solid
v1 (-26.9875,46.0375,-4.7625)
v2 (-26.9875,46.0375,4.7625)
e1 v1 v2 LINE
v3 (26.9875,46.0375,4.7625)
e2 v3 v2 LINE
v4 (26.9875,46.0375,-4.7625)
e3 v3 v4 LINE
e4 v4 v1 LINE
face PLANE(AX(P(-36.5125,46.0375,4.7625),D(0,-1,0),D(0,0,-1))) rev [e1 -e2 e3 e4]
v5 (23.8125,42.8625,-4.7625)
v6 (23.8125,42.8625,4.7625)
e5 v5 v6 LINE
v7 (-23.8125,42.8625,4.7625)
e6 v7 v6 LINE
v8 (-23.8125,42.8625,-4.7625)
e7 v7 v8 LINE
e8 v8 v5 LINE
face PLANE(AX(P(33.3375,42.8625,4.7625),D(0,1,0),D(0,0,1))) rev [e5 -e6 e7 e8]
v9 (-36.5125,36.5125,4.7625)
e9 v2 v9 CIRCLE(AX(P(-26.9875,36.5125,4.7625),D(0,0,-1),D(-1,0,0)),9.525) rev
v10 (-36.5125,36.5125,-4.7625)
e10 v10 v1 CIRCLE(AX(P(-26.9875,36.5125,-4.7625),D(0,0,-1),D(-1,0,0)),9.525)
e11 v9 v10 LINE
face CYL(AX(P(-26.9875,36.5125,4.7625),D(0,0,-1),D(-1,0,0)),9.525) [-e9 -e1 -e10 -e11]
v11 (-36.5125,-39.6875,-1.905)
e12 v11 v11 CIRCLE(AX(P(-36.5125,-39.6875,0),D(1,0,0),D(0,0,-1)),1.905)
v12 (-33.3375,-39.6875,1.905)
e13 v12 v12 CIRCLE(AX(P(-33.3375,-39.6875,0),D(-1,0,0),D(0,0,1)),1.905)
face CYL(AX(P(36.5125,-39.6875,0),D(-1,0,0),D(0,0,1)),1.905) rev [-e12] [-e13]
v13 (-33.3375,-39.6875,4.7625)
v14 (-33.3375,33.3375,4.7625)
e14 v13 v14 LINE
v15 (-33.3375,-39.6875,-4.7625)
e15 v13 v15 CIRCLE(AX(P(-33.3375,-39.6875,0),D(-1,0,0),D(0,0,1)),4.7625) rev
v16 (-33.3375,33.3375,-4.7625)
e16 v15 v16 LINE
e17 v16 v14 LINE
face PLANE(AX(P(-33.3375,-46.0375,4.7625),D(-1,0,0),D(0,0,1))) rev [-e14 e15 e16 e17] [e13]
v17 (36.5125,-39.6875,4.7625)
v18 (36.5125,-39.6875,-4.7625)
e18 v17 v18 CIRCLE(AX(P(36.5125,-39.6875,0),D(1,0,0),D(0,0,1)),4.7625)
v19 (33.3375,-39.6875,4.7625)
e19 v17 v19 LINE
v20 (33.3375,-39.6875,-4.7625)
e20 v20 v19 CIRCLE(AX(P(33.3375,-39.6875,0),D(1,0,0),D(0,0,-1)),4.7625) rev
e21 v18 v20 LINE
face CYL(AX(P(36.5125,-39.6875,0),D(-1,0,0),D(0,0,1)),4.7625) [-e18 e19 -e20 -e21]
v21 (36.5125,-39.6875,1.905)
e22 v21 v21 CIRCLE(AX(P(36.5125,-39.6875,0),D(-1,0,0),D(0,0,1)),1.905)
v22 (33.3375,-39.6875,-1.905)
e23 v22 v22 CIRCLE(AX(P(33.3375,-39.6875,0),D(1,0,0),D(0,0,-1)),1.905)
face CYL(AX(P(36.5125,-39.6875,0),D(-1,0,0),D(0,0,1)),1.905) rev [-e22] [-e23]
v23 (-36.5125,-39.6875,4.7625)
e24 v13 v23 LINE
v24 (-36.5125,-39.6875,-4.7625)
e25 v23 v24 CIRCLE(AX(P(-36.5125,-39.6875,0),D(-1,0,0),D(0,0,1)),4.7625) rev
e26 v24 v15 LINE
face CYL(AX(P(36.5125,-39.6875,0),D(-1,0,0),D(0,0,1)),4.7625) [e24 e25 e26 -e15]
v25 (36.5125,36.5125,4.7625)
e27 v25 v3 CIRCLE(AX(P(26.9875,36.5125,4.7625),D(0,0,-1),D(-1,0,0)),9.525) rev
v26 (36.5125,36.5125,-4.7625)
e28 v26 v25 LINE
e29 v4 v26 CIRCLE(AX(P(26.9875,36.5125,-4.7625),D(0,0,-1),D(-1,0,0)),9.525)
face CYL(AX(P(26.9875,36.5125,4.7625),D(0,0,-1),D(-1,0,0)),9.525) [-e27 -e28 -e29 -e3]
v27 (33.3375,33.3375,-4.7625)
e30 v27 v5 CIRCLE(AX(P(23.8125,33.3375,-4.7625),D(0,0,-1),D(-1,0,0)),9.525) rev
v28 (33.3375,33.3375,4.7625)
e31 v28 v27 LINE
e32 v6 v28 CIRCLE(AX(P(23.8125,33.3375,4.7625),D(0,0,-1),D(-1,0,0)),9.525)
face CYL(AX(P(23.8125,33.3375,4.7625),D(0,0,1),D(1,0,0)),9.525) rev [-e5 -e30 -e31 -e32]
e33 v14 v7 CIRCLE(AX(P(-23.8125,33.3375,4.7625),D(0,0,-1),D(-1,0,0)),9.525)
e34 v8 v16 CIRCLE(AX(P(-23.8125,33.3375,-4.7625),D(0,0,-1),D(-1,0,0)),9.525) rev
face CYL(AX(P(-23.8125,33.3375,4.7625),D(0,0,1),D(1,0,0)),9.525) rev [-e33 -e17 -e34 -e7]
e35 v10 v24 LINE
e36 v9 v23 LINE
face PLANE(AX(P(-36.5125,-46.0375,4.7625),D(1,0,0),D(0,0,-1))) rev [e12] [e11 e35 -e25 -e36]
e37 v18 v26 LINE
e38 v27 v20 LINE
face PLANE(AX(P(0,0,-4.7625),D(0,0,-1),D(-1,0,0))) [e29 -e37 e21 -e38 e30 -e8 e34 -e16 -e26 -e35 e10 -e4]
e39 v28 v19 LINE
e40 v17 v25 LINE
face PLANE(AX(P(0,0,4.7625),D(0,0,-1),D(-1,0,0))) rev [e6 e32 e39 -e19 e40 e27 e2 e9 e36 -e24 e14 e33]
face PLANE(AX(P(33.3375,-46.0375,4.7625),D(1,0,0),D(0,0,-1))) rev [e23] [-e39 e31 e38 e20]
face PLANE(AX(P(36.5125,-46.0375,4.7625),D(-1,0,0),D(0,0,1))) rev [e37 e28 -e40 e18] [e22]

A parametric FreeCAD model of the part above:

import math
import FreeCAD as App
import Part
import Sketcher

V = App.Vector
Q = App.Units.Quantity


def edges_at(feature, points):
    """Names of the edges that pass closest to the given points."""
    edges = feature.Shape.Edges
    near = lambda p: min(range(len(edges)), key=lambda i: edges[i].distToShape(Part.Vertex(*p))[0])
    return sorted({f"Edge{near(p) + 1}" for p in points})


def add_polygon(sketch, points):
    """Adds a closed chain of lines whose ends are joined by coincident constraints."""
    first, n = sketch.GeometryCount, len(points)
    for a, b in zip(points, points[1:] + points[:1]):
        sketch.addGeometry(Part.LineSegment(App.Vector(*a, 0), App.Vector(*b, 0)), False)
    for i in range(n):
        sketch.addConstraint(Sketcher.Constraint("Coincident", first + i, 2, first + (i + 1) % n, 1))

doc = App.newDocument("Part")
body = doc.addObject("PartDesign::Body", "Body")

# Sketch on XY plane
sketch1 = body.newObject("Sketcher::SketchObject", "Sketch")
sketch1.AttachmentSupport = (doc.getObject("XY_Plane"), [""])
sketch1.MapMode = "FlatFace"
add_polygon(sketch1, [(33.3, -46), (36.5, -46), (36.5, 46), (-36.5, 46), (-36.5, -46), (-33.3, -46), (-33.3, 42.9), (33.3, 42.9)])  # lines 0-7
sketch1.addConstraint([
    Sketcher.Constraint("Horizontal", 0),
    Sketcher.Constraint("Vertical", 1),
    Sketcher.Constraint("Horizontal", 2),
    Sketcher.Constraint("Vertical", 3),
    Sketcher.Constraint("Horizontal", 4),
    Sketcher.Constraint("Vertical", 5),
    Sketcher.Constraint("Horizontal", 6),
    Sketcher.Constraint("Vertical", 7),
    Sketcher.Constraint("Symmetric", 0, 2, 2, 2, -1, 1),
    Sketcher.Constraint("Symmetric", 4, 2, 7, 2, -2),
    Sketcher.Constraint("DistanceY", 5, 1, 5, 2, Q("3.5 in")),
    Sketcher.Constraint("DistanceX", 0, 1, 0, 2, Q("0.125 in")),
    Sketcher.Constraint("DistanceX", 2, 2, 2, 1, Q("2.875 in")),
    Sketcher.Constraint("DistanceY", 1, 1, 1, 2, Q("3.625 in")),
])
pad1 = body.newObject("PartDesign::Pad", "Pad")
pad1.Profile = sketch1
pad1.Length = Q("0.375 in")
pad1.Midplane = True

# Sketch on YZ plane
sketch2 = body.newObject("Sketcher::SketchObject", "Sketch001")
sketch2.AttachmentSupport = (doc.getObject("YZ_Plane"), [""])
sketch2.MapMode = "FlatFace"
sketch2.AttachmentOffset = App.Placement(V(0, 0, -1.4375 * 25.4), App.Rotation())
sketch2.addGeometry([
    Part.Circle(V(-39.7, 0, 0), V(0, 0, 1), 1.9),  # 0
    Part.LineSegment(V(-39.7, -4.8, 0), V(-46, -4.8, 0)),  # 1
    Part.LineSegment(V(-46, -4.8, 0), V(-46, 4.8, 0)),  # 2
    Part.LineSegment(V(-46, 4.8, 0), V(-39.7, 4.8, 0)),  # 3
    Part.ArcOfCircle(Part.Circle(V(-39.7, 0, 0), V(0, 0, 1), 4.8), math.radians(90), math.radians(270)),  # 4
], False)
sketch2.addConstraint([
    Sketcher.Constraint("Coincident", 1, 2, 2, 1),
    Sketcher.Constraint("Coincident", 2, 2, 3, 1),
    Sketcher.Constraint("Tangent", 3, 2, 4, 1),
    Sketcher.Constraint("Tangent", 4, 2, 1, 1),
    Sketcher.Constraint("Horizontal", 1),
    Sketcher.Constraint("Vertical", 2),
    Sketcher.Constraint("Horizontal", 3),
    Sketcher.Constraint("Coincident", 4, 3, 0, 3),
    Sketcher.Constraint("PointOnObject", 0, 3, -1),
    Sketcher.Constraint("Diameter", 0, Q("0.15 in")),
    Sketcher.Constraint("Radius", 4, Q("0.1875 in")),
    Sketcher.Constraint("DistanceX", 1, 2, 1, 1, Q("0.25 in")),
    Sketcher.Constraint("DistanceX", 0, 3, -1, 1, Q("1.5625 in")),
])
pocket1 = body.newObject("PartDesign::Pocket", "Pocket")
pocket1.Profile = sketch2
pocket1.Type = "ThroughAll"
pocket1.Midplane = True
doc.recompute()

fillet = body.newObject("PartDesign::Fillet", "Fillet")
fillet.Base = (pocket1, edges_at(pocket1, [
    (33.337, 42.862, 0),
    (-33.337, 42.862, 0),
    (-36.513, 46.038, 0),
    (36.513, 46.038, 0),
]))
fillet.Radius = Q("0.375 in")

doc.recompute()
